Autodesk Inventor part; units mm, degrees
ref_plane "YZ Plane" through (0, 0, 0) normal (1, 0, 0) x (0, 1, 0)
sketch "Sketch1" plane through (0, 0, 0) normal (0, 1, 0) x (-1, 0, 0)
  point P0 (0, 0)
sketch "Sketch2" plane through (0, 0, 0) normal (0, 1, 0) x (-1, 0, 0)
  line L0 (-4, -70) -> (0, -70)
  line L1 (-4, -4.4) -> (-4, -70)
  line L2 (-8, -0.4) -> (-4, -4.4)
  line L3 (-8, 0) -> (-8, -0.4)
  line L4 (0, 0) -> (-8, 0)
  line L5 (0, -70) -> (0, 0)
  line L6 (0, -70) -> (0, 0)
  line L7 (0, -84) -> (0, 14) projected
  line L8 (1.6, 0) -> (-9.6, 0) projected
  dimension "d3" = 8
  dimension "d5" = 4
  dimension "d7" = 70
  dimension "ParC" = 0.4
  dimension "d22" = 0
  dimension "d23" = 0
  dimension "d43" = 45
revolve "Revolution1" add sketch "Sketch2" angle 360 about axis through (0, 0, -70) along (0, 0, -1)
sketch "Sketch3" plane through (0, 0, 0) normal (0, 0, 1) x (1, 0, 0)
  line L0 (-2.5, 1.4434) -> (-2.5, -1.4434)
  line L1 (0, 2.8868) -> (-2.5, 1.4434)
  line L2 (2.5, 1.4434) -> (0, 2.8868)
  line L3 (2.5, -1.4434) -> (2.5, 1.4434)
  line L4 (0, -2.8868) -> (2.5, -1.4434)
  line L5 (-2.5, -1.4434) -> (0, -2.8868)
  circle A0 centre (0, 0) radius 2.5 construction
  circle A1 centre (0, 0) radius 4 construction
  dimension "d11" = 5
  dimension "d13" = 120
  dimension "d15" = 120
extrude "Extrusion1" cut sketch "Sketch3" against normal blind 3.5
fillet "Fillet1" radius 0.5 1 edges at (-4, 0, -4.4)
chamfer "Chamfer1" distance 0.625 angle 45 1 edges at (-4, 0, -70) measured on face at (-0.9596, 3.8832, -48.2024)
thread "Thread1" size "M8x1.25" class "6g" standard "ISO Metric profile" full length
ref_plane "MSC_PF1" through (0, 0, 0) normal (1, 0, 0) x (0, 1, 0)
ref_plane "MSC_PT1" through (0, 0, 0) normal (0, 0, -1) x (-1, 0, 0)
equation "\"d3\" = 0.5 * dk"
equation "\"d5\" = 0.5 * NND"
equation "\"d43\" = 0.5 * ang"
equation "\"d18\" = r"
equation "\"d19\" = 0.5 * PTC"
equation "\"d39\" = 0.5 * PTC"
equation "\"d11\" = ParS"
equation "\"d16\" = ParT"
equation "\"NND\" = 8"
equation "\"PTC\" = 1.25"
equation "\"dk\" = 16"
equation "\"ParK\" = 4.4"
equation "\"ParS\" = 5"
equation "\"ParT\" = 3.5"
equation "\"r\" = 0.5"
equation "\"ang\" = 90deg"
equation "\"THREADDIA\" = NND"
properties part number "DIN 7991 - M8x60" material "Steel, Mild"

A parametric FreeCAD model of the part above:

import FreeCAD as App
import Part
import Sketcher
Q = App.Units.Quantity


def edges_at(feature, points):
    """Names of the edges that pass closest to the given points."""
    edges = feature.Shape.Edges
    near = lambda p: min(range(len(edges)), key=lambda i: edges[i].distToShape(Part.Vertex(*p))[0])
    return sorted({f"Edge{near(p) + 1}" for p in points})

doc = App.newDocument("Part")
body = doc.addObject("PartDesign::Body", "Body")

sketch1 = body.newObject("Sketcher::SketchObject", "Sketch")
sketch1.AttachmentSupport = (doc.getObject("XZ_Plane"), [""])
sketch1.MapMode = "FlatFace"
sketch1.addGeometry(Part.LineSegment(App.Vector(4, -4.4, 0), App.Vector(4, -70, 0)), False)
sketch1.addGeometry(Part.LineSegment(App.Vector(4, -70, 0), App.Vector(0, -70, 0)), False)
sketch1.addGeometry(Part.LineSegment(App.Vector(0, -70, 0), App.Vector(0, 0, 0)), False)
sketch1.addGeometry(Part.LineSegment(App.Vector(0, 0, 0), App.Vector(8, 0, 0)), False)
sketch1.addGeometry(Part.LineSegment(App.Vector(8, 0, 0), App.Vector(8, -0.4, 0)), False)
sketch1.addGeometry(Part.LineSegment(App.Vector(8, -0.4, 0), App.Vector(4, -4.4, 0)), False)
sketch1.addConstraint(Sketcher.Constraint("Coincident", 0, 2, 1, 1))
sketch1.addConstraint(Sketcher.Constraint("Coincident", 1, 2, 2, 1))
sketch1.addConstraint(Sketcher.Constraint("Coincident", 2, 2, 3, 1))
sketch1.addConstraint(Sketcher.Constraint("Coincident", 3, 2, 4, 1))
sketch1.addConstraint(Sketcher.Constraint("Coincident", 4, 2, 5, 1))
sketch1.addConstraint(Sketcher.Constraint("Coincident", 5, 2, 0, 1))
sketch1.addConstraint(Sketcher.Constraint("Vertical", 0))
sketch1.addConstraint(Sketcher.Constraint("Horizontal", 1))
sketch1.addConstraint(Sketcher.Constraint("Vertical", 2))
sketch1.addConstraint(Sketcher.Constraint("Horizontal", 3))
sketch1.addConstraint(Sketcher.Constraint("Vertical", 4))
sketch1.addConstraint(Sketcher.Constraint("Coincident", 2, 2, -1, 1))
sketch1.addConstraint(Sketcher.Constraint("DistanceX", 1, 2, 1, 1, Q("4 mm")))
sketch1.addConstraint(Sketcher.Constraint("DistanceX", 3, 1, 3, 2, Q("8 mm")))
sketch1.addConstraint(Sketcher.Constraint("DistanceY", 2, 1, 2, 2, Q("70 mm")))
sketch1.addConstraint(Sketcher.Constraint("DistanceY", 4, 2, 4, 1, Q("0.4 mm")))
sketch1.addConstraint(Sketcher.Constraint("DistanceY", 5, 2, 4, 2, Q("4 mm")))
revolution = body.newObject("PartDesign::Revolution", "Revolution")
revolution.Profile = sketch1
revolution.ReferenceAxis = (sketch1, ["V_Axis"])
revolution.Angle = 360

sketch2 = body.newObject("Sketcher::SketchObject", "Sketch001")
sketch2.AttachmentSupport = (doc.getObject("XY_Plane"), [""])
sketch2.MapMode = "FlatFace"
sketch2.addGeometry(Part.LineSegment(App.Vector(0, 2.8868, 0), App.Vector(-2.5, 1.4434, 0)), False)
sketch2.addGeometry(Part.LineSegment(App.Vector(-2.5, 1.4434, 0), App.Vector(-2.5, -1.4434, 0)), False)
sketch2.addGeometry(Part.LineSegment(App.Vector(-2.5, -1.4434, 0), App.Vector(0, -2.8868, 0)), False)
sketch2.addGeometry(Part.LineSegment(App.Vector(0, -2.8868, 0), App.Vector(2.5, -1.4434, 0)), False)
sketch2.addGeometry(Part.LineSegment(App.Vector(2.5, -1.4434, 0), App.Vector(2.5, 1.4434, 0)), False)
sketch2.addGeometry(Part.LineSegment(App.Vector(2.5, 1.4434, 0), App.Vector(0, 2.8868, 0)), False)
sketch2.addConstraint(Sketcher.Constraint("Coincident", 0, 2, 1, 1))
sketch2.addConstraint(Sketcher.Constraint("Coincident", 1, 2, 2, 1))
sketch2.addConstraint(Sketcher.Constraint("Coincident", 2, 2, 3, 1))
sketch2.addConstraint(Sketcher.Constraint("Coincident", 3, 2, 4, 1))
sketch2.addConstraint(Sketcher.Constraint("Coincident", 4, 2, 5, 1))
sketch2.addConstraint(Sketcher.Constraint("Coincident", 5, 2, 0, 1))
sketch2.addConstraint(Sketcher.Constraint("Vertical", 1))
sketch2.addConstraint(Sketcher.Constraint("Vertical", 4))
sketch2.addConstraint(Sketcher.Constraint("Symmetric", 0, 2, 3, 2, -1, 1))
sketch2.addConstraint(Sketcher.Constraint("Symmetric", 2, 2, 5, 2, -1, 1))
sketch2.addConstraint(Sketcher.Constraint("PointOnObject", 2, 2, -2))
sketch2.addConstraint(Sketcher.Constraint("Parallel", 2, 5))
sketch2.addConstraint(Sketcher.Constraint("Horizontal", 1, 2, 3, 2))
sketch2.addConstraint(Sketcher.Constraint("DistanceX", 1, 2, 3, 2, Q("5 mm")))
sketch2.addConstraint(Sketcher.Constraint("Angle", 0, Q("-149.9996 deg")))
sketch2.addConstraint(Sketcher.Constraint("DistanceY", 1, 2, 1, 1, Q("2.8868 mm")))
pocket1 = body.newObject("PartDesign::Pocket", "Pocket")
pocket1.Profile = sketch2
pocket1.Length = 3.5
doc.recompute()

fillet = body.newObject("PartDesign::Fillet", "Fillet")
fillet.Base = (pocket1, edges_at(pocket1, [(-4, 0, -4.4)]))
fillet.Radius = 0.5
doc.recompute()

chamfer = body.newObject("PartDesign::Chamfer", "Chamfer")
chamfer.Base = (fillet, edges_at(fillet, [(-4, 0, -70)]))
chamfer.Size = 0.625

doc.recompute()
